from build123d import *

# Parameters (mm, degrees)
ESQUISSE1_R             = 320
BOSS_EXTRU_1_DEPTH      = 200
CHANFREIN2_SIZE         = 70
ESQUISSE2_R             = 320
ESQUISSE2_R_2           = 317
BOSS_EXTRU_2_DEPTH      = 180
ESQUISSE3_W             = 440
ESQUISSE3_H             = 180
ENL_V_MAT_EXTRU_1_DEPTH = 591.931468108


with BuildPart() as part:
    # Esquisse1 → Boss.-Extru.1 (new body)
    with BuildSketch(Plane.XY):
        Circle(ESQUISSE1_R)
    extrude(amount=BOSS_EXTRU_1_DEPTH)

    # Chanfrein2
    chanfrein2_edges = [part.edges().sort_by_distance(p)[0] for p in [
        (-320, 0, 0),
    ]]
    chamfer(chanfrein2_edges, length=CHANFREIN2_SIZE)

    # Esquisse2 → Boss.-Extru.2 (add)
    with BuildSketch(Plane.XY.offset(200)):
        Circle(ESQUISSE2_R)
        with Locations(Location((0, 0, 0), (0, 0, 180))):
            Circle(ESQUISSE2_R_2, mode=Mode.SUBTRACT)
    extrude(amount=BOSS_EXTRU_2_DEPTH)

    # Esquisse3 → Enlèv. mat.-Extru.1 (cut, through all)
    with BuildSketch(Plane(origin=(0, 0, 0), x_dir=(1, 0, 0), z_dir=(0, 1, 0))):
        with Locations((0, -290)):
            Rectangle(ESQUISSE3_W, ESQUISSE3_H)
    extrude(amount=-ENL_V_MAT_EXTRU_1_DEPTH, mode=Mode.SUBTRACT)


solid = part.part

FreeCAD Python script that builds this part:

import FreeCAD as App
import Part
import Sketcher
Q = App.Units.Quantity


def edges_at(feature, points):
    """Names of the edges that pass closest to the given points."""
    edges = feature.Shape.Edges
    near = lambda p: min(range(len(edges)), key=lambda i: edges[i].distToShape(Part.Vertex(*p))[0])
    return sorted({f"Edge{near(p) + 1}" for p in points})

doc = App.newDocument("Part")
params = doc.addObject("Spreadsheet::Sheet", "Params")
for row, (alias, value) in enumerate([
    ("sketch1_diameter", "640 mm"),
    ("pad1_length", "200 mm"),
    ("chamfer_size", "70 mm"),
    ("sketch2_diameter", "640 mm"),
    ("sketch2_diameter2", "634 mm"),
    ("pad2_length", "180 mm"),
    ("sketch3_width", "440 mm"),
    ("sketch3_height", "180 mm"),
], start=1):
    params.set(f"A{row}", alias)
    params.set(f"B{row}", "=" + value)
    params.setAlias(f"B{row}", alias)

body = doc.addObject("PartDesign::Body", "Body")

# Sketch on XY plane
sketch1 = doc.addObject("Sketcher::SketchObject", "Sketch")
body.addObject(sketch1)
sketch1.AttachmentSupport = (doc.XY_Plane, [""])
sketch1.MapMode = "FlatFace"
sketch1.addGeometry(Part.Circle(App.Vector(0, 0, 0), App.Vector(0, 0, 1), 320), False)
sketch1.addConstraint([
    Sketcher.Constraint("Coincident", 0, 3, -1, 1),
    Sketcher.Constraint("Diameter", 0, Q("640 mm")),
])
sketch1.setExpression("Constraints[1]", "Params.sketch1_diameter")
pad1 = doc.addObject("PartDesign::Pad", "Pad")
body.addObject(pad1)
pad1.Profile = sketch1
pad1.setExpression("Length", "Params.pad1_length")
doc.recompute()

chamfer = doc.addObject("PartDesign::Chamfer", "Chamfer")
body.addObject(chamfer)
chamfer.Base = (pad1, edges_at(pad1, [(-320, 0, 0)]))
chamfer.setExpression("Size", "Params.chamfer_size")

# Sketch on XY plane
sketch2 = doc.addObject("Sketcher::SketchObject", "Sketch001")
body.addObject(sketch2)
sketch2.AttachmentSupport = (doc.XY_Plane, [""])
sketch2.MapMode = "FlatFace"
sketch2.AttachmentOffset = App.Placement(App.Vector(0, 0, 200), App.Rotation())
sketch2.addGeometry([
    Part.Circle(App.Vector(0, 0, 0), App.Vector(0, 0, 1), 320),
    Part.Circle(App.Vector(0, 0, 0), App.Vector(0, 0, 1), 317),
], False)
sketch2.addConstraint([
    Sketcher.Constraint("Coincident", 0, 3, -1, 1),
    Sketcher.Constraint("Coincident", 1, 3, -1, 1),
    Sketcher.Constraint("Diameter", 0, Q("640 mm")),
    Sketcher.Constraint("Diameter", 1, Q("634 mm")),
])
sketch2.setExpression("Constraints[2]", "Params.sketch2_diameter")
sketch2.setExpression("Constraints[3]", "Params.sketch2_diameter2")
pad2 = doc.addObject("PartDesign::Pad", "Pad001")
body.addObject(pad2)
pad2.Profile = sketch2
pad2.setExpression("Length", "Params.pad2_length")

# Sketch on XZ plane
sketch3 = doc.addObject("Sketcher::SketchObject", "Sketch002")
body.addObject(sketch3)
sketch3.AttachmentSupport = (doc.XZ_Plane, [""])
sketch3.MapMode = "FlatFace"
sketch3.addGeometry([
    Part.LineSegment(App.Vector(-220, 200, 0), App.Vector(-220, 380, 0)),
    Part.LineSegment(App.Vector(-220, 380, 0), App.Vector(220, 380, 0)),
    Part.LineSegment(App.Vector(220, 380, 0), App.Vector(220, 200, 0)),
    Part.LineSegment(App.Vector(220, 200, 0), App.Vector(-220, 200, 0)),
], False)
sketch3.addConstraint([
    Sketcher.Constraint("Coincident", 0, 2, 1, 1),
    Sketcher.Constraint("Coincident", 1, 2, 2, 1),
    Sketcher.Constraint("Coincident", 2, 2, 3, 1),
    Sketcher.Constraint("Coincident", 3, 2, 0, 1),
    Sketcher.Constraint("Vertical", 0),
    Sketcher.Constraint("Horizontal", 1),
    Sketcher.Constraint("Vertical", 2),
    Sketcher.Constraint("Horizontal", 3),
    Sketcher.Constraint("DistanceX", 1, 1, 1, 2, Q("440 mm")),
    Sketcher.Constraint("DistanceY", 0, 1, 0, 2, Q("180 mm")),
    Sketcher.Constraint("DistanceX", 0, 2, -1, 1, Q("220 mm")),
    Sketcher.Constraint("DistanceY", -1, 1, 0, 2, Q("380 mm")),
])
sketch3.setExpression("Constraints[8]", "Params.sketch3_width")
sketch3.setExpression("Constraints[9]", "Params.sketch3_height")
pocket1 = doc.addObject("PartDesign::Pocket", "Pocket")
body.addObject(pocket1)
pocket1.Profile = sketch3
pocket1.Type = "ThroughAll"
pocket1.Reversed = True

doc.recompute()
